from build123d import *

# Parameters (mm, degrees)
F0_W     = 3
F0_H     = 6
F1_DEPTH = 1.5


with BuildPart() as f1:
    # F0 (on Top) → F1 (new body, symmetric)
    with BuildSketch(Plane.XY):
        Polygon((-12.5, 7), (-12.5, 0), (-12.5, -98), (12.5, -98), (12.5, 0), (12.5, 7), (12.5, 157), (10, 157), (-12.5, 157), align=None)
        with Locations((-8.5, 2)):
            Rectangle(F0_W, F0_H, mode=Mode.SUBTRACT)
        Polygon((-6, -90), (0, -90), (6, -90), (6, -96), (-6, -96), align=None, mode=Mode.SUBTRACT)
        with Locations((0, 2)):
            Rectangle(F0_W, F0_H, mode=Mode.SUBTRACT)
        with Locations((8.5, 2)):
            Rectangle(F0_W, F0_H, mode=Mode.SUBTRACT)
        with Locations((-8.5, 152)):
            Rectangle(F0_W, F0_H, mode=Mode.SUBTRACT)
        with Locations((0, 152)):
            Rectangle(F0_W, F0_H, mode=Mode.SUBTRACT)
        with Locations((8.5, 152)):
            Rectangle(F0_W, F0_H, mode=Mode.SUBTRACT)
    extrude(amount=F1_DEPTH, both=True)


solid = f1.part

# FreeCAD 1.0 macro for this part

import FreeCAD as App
import Part
import Sketcher

V = App.Vector
Q = App.Units.Quantity

doc = App.newDocument("Part")
body = doc.addObject("PartDesign::Body", "Body")

# Sketch on XY plane
sketch1 = body.newObject("Sketcher::SketchObject", "Sketch")
sketch1.AttachmentSupport = (doc.getObject("XY_Plane"), [""])
sketch1.MapMode = "FlatFace"
sketch1.addGeometry([
    Part.LineSegment(V(-12.5, -98, 0), V(12.5, -98, 0)),  # 0
    Part.LineSegment(V(12.5, -98, 0), V(12.5, 157, 0)),  # 1
    Part.LineSegment(V(12.5, 157, 0), V(-12.5, 157, 0)),  # 2
    Part.LineSegment(V(-12.5, 157, 0), V(-12.5, -98, 0)),  # 3
    Part.LineSegment(V(-7, -1, 0), V(-10, -1, 0)),  # 4
    Part.LineSegment(V(-10, -1, 0), V(-10, 5, 0)),  # 5
    Part.LineSegment(V(-10, 5, 0), V(-7, 5, 0)),  # 6
    Part.LineSegment(V(-7, 5, 0), V(-7, -1, 0)),  # 7
    Part.LineSegment(V(-6, -96, 0), V(-6, -90, 0)),  # 8
    Part.LineSegment(V(-6, -90, 0), V(6, -90, 0)),  # 9
    Part.LineSegment(V(6, -90, 0), V(6, -96, 0)),  # 10
    Part.LineSegment(V(6, -96, 0), V(-6, -96, 0)),  # 11
    Part.LineSegment(V(1.5, -1, 0), V(-1.5, -1, 0)),  # 12
    Part.LineSegment(V(-1.5, -1, 0), V(-1.5, 5, 0)),  # 13
    Part.LineSegment(V(-1.5, 5, 0), V(1.5, 5, 0)),  # 14
    Part.LineSegment(V(1.5, 5, 0), V(1.5, -1, 0)),  # 15
    Part.LineSegment(V(10, -1, 0), V(7, -1, 0)),  # 16
    Part.LineSegment(V(7, -1, 0), V(7, 5, 0)),  # 17
    Part.LineSegment(V(7, 5, 0), V(10, 5, 0)),  # 18
    Part.LineSegment(V(10, 5, 0), V(10, -1, 0)),  # 19
    Part.LineSegment(V(-7, 149, 0), V(-10, 149, 0)),  # 20
    Part.LineSegment(V(-10, 149, 0), V(-10, 155, 0)),  # 21
    Part.LineSegment(V(-10, 155, 0), V(-7, 155, 0)),  # 22
    Part.LineSegment(V(-7, 155, 0), V(-7, 149, 0)),  # 23
    Part.LineSegment(V(1.5, 149, 0), V(-1.5, 149, 0)),  # 24
    Part.LineSegment(V(-1.5, 149, 0), V(-1.5, 155, 0)),  # 25
    Part.LineSegment(V(-1.5, 155, 0), V(1.5, 155, 0)),  # 26
    Part.LineSegment(V(1.5, 155, 0), V(1.5, 149, 0)),  # 27
    Part.LineSegment(V(10, 149, 0), V(7, 149, 0)),  # 28
    Part.LineSegment(V(7, 149, 0), V(7, 155, 0)),  # 29
    Part.LineSegment(V(7, 155, 0), V(10, 155, 0)),  # 30
    Part.LineSegment(V(10, 155, 0), V(10, 149, 0)),  # 31
], False)
sketch1.addConstraint([
    Sketcher.Constraint("Coincident", 0, 2, 1, 1),
    Sketcher.Constraint("Coincident", 1, 2, 2, 1),
    Sketcher.Constraint("Coincident", 2, 2, 3, 1),
    Sketcher.Constraint("Coincident", 3, 2, 0, 1),
    Sketcher.Constraint("Coincident", 4, 2, 5, 1),
    Sketcher.Constraint("Coincident", 5, 2, 6, 1),
    Sketcher.Constraint("Coincident", 6, 2, 7, 1),
    Sketcher.Constraint("Coincident", 7, 2, 4, 1),
    Sketcher.Constraint("Coincident", 8, 2, 9, 1),
    Sketcher.Constraint("Coincident", 9, 2, 10, 1),
    Sketcher.Constraint("Coincident", 10, 2, 11, 1),
    Sketcher.Constraint("Coincident", 11, 2, 8, 1),
    Sketcher.Constraint("Coincident", 12, 2, 13, 1),
    Sketcher.Constraint("Coincident", 13, 2, 14, 1),
    Sketcher.Constraint("Coincident", 14, 2, 15, 1),
    Sketcher.Constraint("Coincident", 15, 2, 12, 1),
    Sketcher.Constraint("Coincident", 16, 2, 17, 1),
    Sketcher.Constraint("Coincident", 17, 2, 18, 1),
    Sketcher.Constraint("Coincident", 18, 2, 19, 1),
    Sketcher.Constraint("Coincident", 19, 2, 16, 1),
    Sketcher.Constraint("Coincident", 20, 2, 21, 1),
    Sketcher.Constraint("Coincident", 21, 2, 22, 1),
    Sketcher.Constraint("Coincident", 22, 2, 23, 1),
    Sketcher.Constraint("Coincident", 23, 2, 20, 1),
    Sketcher.Constraint("Coincident", 24, 2, 25, 1),
    Sketcher.Constraint("Coincident", 25, 2, 26, 1),
    Sketcher.Constraint("Coincident", 26, 2, 27, 1),
    Sketcher.Constraint("Coincident", 27, 2, 24, 1),
    Sketcher.Constraint("Coincident", 28, 2, 29, 1),
    Sketcher.Constraint("Coincident", 29, 2, 30, 1),
    Sketcher.Constraint("Coincident", 30, 2, 31, 1),
    Sketcher.Constraint("Coincident", 31, 2, 28, 1),
    Sketcher.Constraint("Horizontal", 0),
    Sketcher.Constraint("Vertical", 1),
    Sketcher.Constraint("Horizontal", 2),
    Sketcher.Constraint("Vertical", 3),
    Sketcher.Constraint("Horizontal", 4),
    Sketcher.Constraint("Vertical", 5),
    Sketcher.Constraint("Horizontal", 6),
    Sketcher.Constraint("Vertical", 7),
    Sketcher.Constraint("Vertical", 8),
    Sketcher.Constraint("Horizontal", 9),
    Sketcher.Constraint("Vertical", 10),
    Sketcher.Constraint("Horizontal", 11),
    Sketcher.Constraint("Horizontal", 12),
    Sketcher.Constraint("Vertical", 13),
    Sketcher.Constraint("Horizontal", 14),
    Sketcher.Constraint("Vertical", 15),
    Sketcher.Constraint("Horizontal", 16),
    Sketcher.Constraint("Vertical", 17),
    Sketcher.Constraint("Horizontal", 18),
    Sketcher.Constraint("Vertical", 19),
    Sketcher.Constraint("Horizontal", 20),
    Sketcher.Constraint("Vertical", 21),
    Sketcher.Constraint("Horizontal", 22),
    Sketcher.Constraint("Vertical", 23),
    Sketcher.Constraint("Horizontal", 24),
    Sketcher.Constraint("Vertical", 25),
    Sketcher.Constraint("Horizontal", 26),
    Sketcher.Constraint("Vertical", 27),
    Sketcher.Constraint("Horizontal", 28),
    Sketcher.Constraint("Vertical", 29),
    Sketcher.Constraint("Horizontal", 30),
    Sketcher.Constraint("Vertical", 31),
    Sketcher.Constraint("Symmetric", 7, 2, 16, 2, -2),
    Sketcher.Constraint("Symmetric", 5, 2, 18, 2, -2),
    Sketcher.Constraint("Symmetric", 23, 2, 28, 2, -2),
    Sketcher.Constraint("Symmetric", 21, 2, 30, 2, -2),
    Sketcher.Constraint("Horizontal", 7, 2, 12, 2),
    Sketcher.Constraint("Horizontal", 6, 2, 13, 2),
    Sketcher.Constraint("Horizontal", 23, 2, 24, 2),
    Sketcher.Constraint("Horizontal", 22, 2, 25, 2),
    Sketcher.Constraint("Vertical", 5, 2, 20, 2),
    Sketcher.Constraint("Vertical", 7, 2, 22, 2),
    Sketcher.Constraint("Vertical", 13, 2, 24, 2),
    Sketcher.Constraint("Vertical", 15, 2, 26, 2),
    Sketcher.Constraint("Equal", 6, 12),
    Sketcher.Constraint("Equal", 7, 8),
    Sketcher.Constraint("Equal", 19, 21),
    Sketcher.Constraint("DistanceX", 0, 1, 0, 2, Q("25 mm")),
    Sketcher.Constraint("DistanceX", 4, 2, 4, 1, Q("3 mm")),
    Sketcher.Constraint("DistanceX", 9, 1, 9, 2, Q("12 mm")),
    Sketcher.Constraint("DistanceY", 1, 1, 1, 2, Q("255 mm")),
    Sketcher.Constraint("DistanceY", 5, 1, 5, 2, Q("6 mm")),
    Sketcher.Constraint("DistanceY", 0, 2, -1, 1, Q("98 mm")),
    Sketcher.Constraint("DistanceX", 4, 2, -1, 1, Q("10 mm")),
    Sketcher.Constraint("DistanceY", 4, 2, -1, 1, Q("1 mm")),
    Sketcher.Constraint("DistanceX", 8, 2, -1, 1, Q("6 mm")),
    Sketcher.Constraint("DistanceY", 8, 2, -1, 1, Q("90 mm")),
    Sketcher.Constraint("DistanceY", -1, 1, 20, 2, Q("149 mm")),
    Sketcher.Constraint("DistanceX", 2, 2, 24, 2, Q("11 mm")),
    Sketcher.Constraint("DistanceX", -1, 1, 0, 2, Q("12.5 mm")),
])
pad1 = body.newObject("PartDesign::Pad", "Pad")
pad1.Profile = sketch1
pad1.Length = 3
pad1.Midplane = True

doc.recompute()
